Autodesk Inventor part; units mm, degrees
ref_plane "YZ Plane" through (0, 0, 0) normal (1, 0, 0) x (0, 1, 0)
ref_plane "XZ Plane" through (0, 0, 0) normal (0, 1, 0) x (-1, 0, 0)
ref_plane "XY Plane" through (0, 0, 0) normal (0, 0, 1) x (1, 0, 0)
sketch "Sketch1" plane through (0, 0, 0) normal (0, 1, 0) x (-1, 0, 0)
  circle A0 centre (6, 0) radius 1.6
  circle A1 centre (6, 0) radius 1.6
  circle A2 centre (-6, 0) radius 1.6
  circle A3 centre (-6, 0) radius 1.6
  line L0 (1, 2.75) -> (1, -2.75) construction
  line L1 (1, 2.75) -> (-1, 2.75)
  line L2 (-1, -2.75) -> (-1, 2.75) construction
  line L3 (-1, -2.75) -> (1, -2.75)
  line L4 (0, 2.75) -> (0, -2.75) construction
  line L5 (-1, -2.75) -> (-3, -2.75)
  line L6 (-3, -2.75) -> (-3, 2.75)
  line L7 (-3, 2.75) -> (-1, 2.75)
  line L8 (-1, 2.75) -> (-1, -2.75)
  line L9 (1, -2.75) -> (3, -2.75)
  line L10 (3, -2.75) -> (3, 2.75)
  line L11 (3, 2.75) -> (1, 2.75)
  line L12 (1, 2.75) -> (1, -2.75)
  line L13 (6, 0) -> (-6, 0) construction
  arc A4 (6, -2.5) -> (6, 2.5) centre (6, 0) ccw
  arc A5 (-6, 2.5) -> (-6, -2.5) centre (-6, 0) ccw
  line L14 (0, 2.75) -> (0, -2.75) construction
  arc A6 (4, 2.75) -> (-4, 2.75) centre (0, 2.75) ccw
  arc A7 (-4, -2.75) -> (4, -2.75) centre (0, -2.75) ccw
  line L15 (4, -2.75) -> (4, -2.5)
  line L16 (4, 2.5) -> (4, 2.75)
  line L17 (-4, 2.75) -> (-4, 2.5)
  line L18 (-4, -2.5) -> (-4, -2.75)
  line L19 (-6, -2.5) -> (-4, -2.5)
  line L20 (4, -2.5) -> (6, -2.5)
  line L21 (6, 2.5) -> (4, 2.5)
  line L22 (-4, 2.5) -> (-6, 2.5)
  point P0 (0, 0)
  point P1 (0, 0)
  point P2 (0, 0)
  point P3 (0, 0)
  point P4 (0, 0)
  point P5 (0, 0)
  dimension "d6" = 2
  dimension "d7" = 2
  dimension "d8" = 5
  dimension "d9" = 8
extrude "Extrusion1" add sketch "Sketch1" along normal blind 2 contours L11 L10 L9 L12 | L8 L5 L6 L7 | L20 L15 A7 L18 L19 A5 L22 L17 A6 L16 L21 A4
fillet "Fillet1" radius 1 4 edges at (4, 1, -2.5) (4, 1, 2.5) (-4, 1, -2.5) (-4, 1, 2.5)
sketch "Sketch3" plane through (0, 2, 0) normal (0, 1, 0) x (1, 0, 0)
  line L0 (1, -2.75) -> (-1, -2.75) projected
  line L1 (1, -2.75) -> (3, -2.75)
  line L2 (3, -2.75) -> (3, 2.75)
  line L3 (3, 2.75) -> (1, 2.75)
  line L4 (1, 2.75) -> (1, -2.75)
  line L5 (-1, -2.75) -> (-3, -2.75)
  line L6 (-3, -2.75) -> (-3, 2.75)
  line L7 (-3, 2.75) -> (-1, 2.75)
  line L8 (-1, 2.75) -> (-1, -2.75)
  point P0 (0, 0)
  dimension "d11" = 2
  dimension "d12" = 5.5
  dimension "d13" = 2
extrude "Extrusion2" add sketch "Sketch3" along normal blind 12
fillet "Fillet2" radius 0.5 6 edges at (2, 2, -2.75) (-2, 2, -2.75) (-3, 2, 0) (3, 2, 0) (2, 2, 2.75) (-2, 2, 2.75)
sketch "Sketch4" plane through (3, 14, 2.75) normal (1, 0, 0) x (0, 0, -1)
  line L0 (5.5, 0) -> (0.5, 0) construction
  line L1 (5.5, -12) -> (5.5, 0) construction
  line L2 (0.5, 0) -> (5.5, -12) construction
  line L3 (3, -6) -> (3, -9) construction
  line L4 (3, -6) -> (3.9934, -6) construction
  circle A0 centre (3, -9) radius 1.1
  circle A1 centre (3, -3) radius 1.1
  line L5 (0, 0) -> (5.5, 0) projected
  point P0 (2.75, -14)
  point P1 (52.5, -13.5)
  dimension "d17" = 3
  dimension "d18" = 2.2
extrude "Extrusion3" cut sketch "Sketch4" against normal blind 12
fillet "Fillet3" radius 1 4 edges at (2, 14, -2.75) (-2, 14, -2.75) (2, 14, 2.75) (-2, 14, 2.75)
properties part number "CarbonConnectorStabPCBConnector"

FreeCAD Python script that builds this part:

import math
import FreeCAD as App
import Part
import Sketcher
from FreeCAD import Vector
Q = App.Units.Quantity


def edges_at(feature, points):
    """Names of the edges that pass closest to the given points."""
    edges = feature.Shape.Edges
    near = lambda p: min(range(len(edges)), key=lambda i: edges[i].distToShape(Part.Vertex(*p))[0])
    return sorted({f"Edge{near(p) + 1}" for p in points})

doc = App.newDocument("Part")
body = doc.addObject("PartDesign::Body", "Body")

# Sketch on XZ plane
sketch1 = doc.addObject("Sketcher::SketchObject", "Sketch")
body.addObject(sketch1)
sketch1.AttachmentSupport = (doc.XZ_Plane, [""])
sketch1.MapMode = "FlatFace"
sketch1.addGeometry([
    Part.LineSegment(Vector(-4, -2.5, 0), Vector(-6, -2.5, 0)),  # 0
    Part.ArcOfCircle(Part.Circle(Vector(-6, 0, 0), Vector(0, 0, 1), 2.5), math.radians(90), math.radians(270)),  # 1
    Part.LineSegment(Vector(-6, 2.5, 0), Vector(-4, 2.5, 0)),  # 2
    Part.LineSegment(Vector(-4, 2.5, 0), Vector(-4, 2.75, 0)),  # 3
    Part.ArcOfCircle(Part.Circle(Vector(0, 2.75, 0), Vector(0, 0, 1), 4), math.radians(0), math.radians(180)),  # 4
    Part.LineSegment(Vector(4, 2.75, 0), Vector(4, 2.5, 0)),  # 5
    Part.LineSegment(Vector(4, 2.5, 0), Vector(6, 2.5, 0)),  # 6
    Part.ArcOfCircle(Part.Circle(Vector(6, 0, 0), Vector(0, 0, 1), 2.5), math.radians(-90), math.radians(90)),  # 7
    Part.LineSegment(Vector(6, -2.5, 0), Vector(4, -2.5, 0)),  # 8
    Part.LineSegment(Vector(4, -2.5, 0), Vector(4, -2.75, 0)),  # 9
    Part.ArcOfCircle(Part.Circle(Vector(0, -2.75, 0), Vector(0, 0, 1), 4), math.radians(180), math.radians(360)),  # 10
    Part.LineSegment(Vector(-4, -2.75, 0), Vector(-4, -2.5, 0)),  # 11
    Part.LineSegment(Vector(-1, 2.75, 0), Vector(-1, -2.75, 0)),  # 12
    Part.LineSegment(Vector(-1, -2.75, 0), Vector(1, -2.75, 0)),  # 13
    Part.LineSegment(Vector(1, -2.75, 0), Vector(1, 2.75, 0)),  # 14
    Part.LineSegment(Vector(1, 2.75, 0), Vector(-1, 2.75, 0)),  # 15
    Part.Circle(Vector(6, 0, 0), Vector(0, 0, 1), 1.6),  # 16
    Part.Circle(Vector(-6, 0, 0), Vector(0, 0, 1), 1.6),  # 17
], False)
sketch1.addConstraint([
    Sketcher.Constraint("Tangent", 0, 2, 1, 2),
    Sketcher.Constraint("Tangent", 1, 1, 2, 1),
    Sketcher.Constraint("Coincident", 2, 2, 3, 1),
    Sketcher.Constraint("Tangent", 3, 2, 4, 2),
    Sketcher.Constraint("Tangent", 4, 1, 5, 1),
    Sketcher.Constraint("Coincident", 5, 2, 6, 1),
    Sketcher.Constraint("Tangent", 6, 2, 7, 2),
    Sketcher.Constraint("Tangent", 7, 1, 8, 1),
    Sketcher.Constraint("Coincident", 8, 2, 9, 1),
    Sketcher.Constraint("Tangent", 9, 2, 10, 2),
    Sketcher.Constraint("Tangent", 10, 1, 11, 1),
    Sketcher.Constraint("Coincident", 11, 2, 0, 1),
    Sketcher.Constraint("Coincident", 12, 2, 13, 1),
    Sketcher.Constraint("Coincident", 13, 2, 14, 1),
    Sketcher.Constraint("Coincident", 14, 2, 15, 1),
    Sketcher.Constraint("Coincident", 15, 2, 12, 1),
    Sketcher.Constraint("Horizontal", 0),
    Sketcher.Constraint("Horizontal", 2),
    Sketcher.Constraint("Vertical", 3),
    Sketcher.Constraint("Vertical", 5),
    Sketcher.Constraint("Horizontal", 6),
    Sketcher.Constraint("Horizontal", 8),
    Sketcher.Constraint("Vertical", 9),
    Sketcher.Constraint("Vertical", 11),
    Sketcher.Constraint("Vertical", 12),
    Sketcher.Constraint("Horizontal", 13),
    Sketcher.Constraint("Vertical", 14),
    Sketcher.Constraint("Horizontal", 15),
    Sketcher.Constraint("Coincident", 16, 3, 7, 3),
    Sketcher.Constraint("Coincident", 17, 3, 1, 3),
    Sketcher.Constraint("Equal", 1, 7),
    Sketcher.Constraint("Equal", 4, 10),
    Sketcher.Constraint("Equal", 16, 17),
    Sketcher.Constraint("Symmetric", 1, 3, 7, 3, -1, 1),
    Sketcher.Constraint("Symmetric", 4, 3, 10, 3, -1, 1),
    Sketcher.Constraint("Symmetric", 12, 2, 14, 2, -1, 1),
    Sketcher.Constraint("Symmetric", 2, 2, 5, 2, -2),
    Sketcher.Constraint("Horizontal", 10, 1, 12, 2),
    Sketcher.Constraint("Equal", 8, 13),
    Sketcher.Constraint("Radius", 4, Q("4 mm")),
    Sketcher.Constraint("Radius", 1, Q("2.5 mm")),
    Sketcher.Constraint("DistanceX", 0, 2, 0, 1, Q("2 mm")),
    Sketcher.Constraint("Diameter", 16, Q("3.2 mm")),
    Sketcher.Constraint("DistanceY", 12, 2, 12, 1, Q("5.5 mm")),
])
pad1 = doc.addObject("PartDesign::Pad", "Pad")
body.addObject(pad1)
pad1.Profile = sketch1
pad1.Length = 2
pad1.Reversed = True
doc.recompute()

fillet = doc.addObject("PartDesign::Fillet", "Fillet")
body.addObject(fillet)
fillet.Base = (pad1, edges_at(pad1, [
    (4, 1, -2.5),
    (4, 1, 2.5),
    (-4, 1, -2.5),
    (-4, 1, 2.5),
]))
fillet.Radius = 1

# Sketch on XZ plane
sketch2 = doc.addObject("Sketcher::SketchObject", "Sketch001")
body.addObject(sketch2)
sketch2.AttachmentSupport = (doc.XZ_Plane, [""])
sketch2.MapMode = "FlatFace"
sketch2.AttachmentOffset = App.Placement(Vector(0, 0, -2), App.Rotation())
sketch2.addGeometry([
    Part.LineSegment(Vector(-3, 2.8, 0), Vector(-1, 2.8, 0)),  # 0
    Part.LineSegment(Vector(-1, 2.8, 0), Vector(-1, -2.8, 0)),  # 1
    Part.LineSegment(Vector(-1, -2.8, 0), Vector(-3, -2.8, 0)),  # 2
    Part.LineSegment(Vector(-3, -2.8, 0), Vector(-3, 2.8, 0)),  # 3
    Part.LineSegment(Vector(1, -2.8, 0), Vector(1, 2.8, 0)),  # 4
    Part.LineSegment(Vector(1, 2.8, 0), Vector(3, 2.8, 0)),  # 5
    Part.LineSegment(Vector(3, 2.8, 0), Vector(3, -2.8, 0)),  # 6
    Part.LineSegment(Vector(3, -2.8, 0), Vector(1, -2.8, 0)),  # 7
], False)
sketch2.addConstraint([
    Sketcher.Constraint("Coincident", 0, 2, 1, 1),
    Sketcher.Constraint("Coincident", 1, 2, 2, 1),
    Sketcher.Constraint("Coincident", 2, 2, 3, 1),
    Sketcher.Constraint("Coincident", 3, 2, 0, 1),
    Sketcher.Constraint("Coincident", 4, 2, 5, 1),
    Sketcher.Constraint("Coincident", 5, 2, 6, 1),
    Sketcher.Constraint("Coincident", 6, 2, 7, 1),
    Sketcher.Constraint("Coincident", 7, 2, 4, 1),
    Sketcher.Constraint("Horizontal", 0),
    Sketcher.Constraint("Vertical", 1),
    Sketcher.Constraint("Horizontal", 2),
    Sketcher.Constraint("Vertical", 3),
    Sketcher.Constraint("Vertical", 4),
    Sketcher.Constraint("Horizontal", 5),
    Sketcher.Constraint("Vertical", 6),
    Sketcher.Constraint("Horizontal", 7),
    Sketcher.Constraint("Symmetric", 1, 2, 4, 2, -1, 1),
    Sketcher.Constraint("Symmetric", 3, 2, 6, 2, -1, 1),
    Sketcher.Constraint("Horizontal", 3, 2, 4, 2),
    Sketcher.Constraint("DistanceX", 0, 1, 0, 2, Q("2 mm")),
    Sketcher.Constraint("DistanceY", 1, 2, 1, 1, Q("5.5 mm")),
    Sketcher.Constraint("DistanceX", 0, 2, 4, 2, Q("2 mm")),
])
pad2 = doc.addObject("PartDesign::Pad", "Pad001")
body.addObject(pad2)
pad2.Profile = sketch2
pad2.Length = 12
pad2.Reversed = True
doc.recompute()

fillet2 = doc.addObject("PartDesign::Fillet", "Fillet001")
body.addObject(fillet2)
fillet2.Base = (pad2, edges_at(pad2, [
    (2, 2, -2.75),
    (-2, 2, -2.75),
    (-3, 2, 0),
    (3, 2, 0),
    (2, 2, 2.75),
    (-2, 2, 2.75),
]))
fillet2.Radius = 0.5

# Sketch on YZ plane
sketch3 = doc.addObject("Sketcher::SketchObject", "Sketch002")
body.addObject(sketch3)
sketch3.AttachmentSupport = (doc.YZ_Plane, [""])
sketch3.MapMode = "FlatFace"
sketch3.AttachmentOffset = App.Placement(Vector(0, 0, 3), App.Rotation())
sketch3.addGeometry([
    Part.Circle(Vector(5, -0.2, 0), Vector(0, 0, 1), 1.1),
    Part.Circle(Vector(11, -0.2, 0), Vector(0, 0, 1), 1.1),
], False)
sketch3.addConstraint([
    Sketcher.Constraint("Equal", 0, 1),
    Sketcher.Constraint("Horizontal", 0, 3, 1, 3),
    Sketcher.Constraint("Diameter", 0, Q("2.2 mm")),
    Sketcher.Constraint("DistanceX", -1, 1, 0, 3, Q("5 mm")),
    Sketcher.Constraint("DistanceX", -1, 1, 1, 3, Q("11 mm")),
    Sketcher.Constraint("DistanceY", 0, 3, -1, 1, Q("0.25 mm")),
])
pocket1 = doc.addObject("PartDesign::Pocket", "Pocket")
body.addObject(pocket1)
pocket1.Profile = sketch3
pocket1.Length = 12
doc.recompute()

fillet3 = doc.addObject("PartDesign::Fillet", "Fillet002")
body.addObject(fillet3)
fillet3.Base = (pocket1, edges_at(pocket1, [
    (2, 14, -2.75),
    (-2, 14, -2.75),
    (2, 14, 2.75),
    (-2, 14, 2.75),
]))
fillet3.Radius = 1

doc.recompute()
